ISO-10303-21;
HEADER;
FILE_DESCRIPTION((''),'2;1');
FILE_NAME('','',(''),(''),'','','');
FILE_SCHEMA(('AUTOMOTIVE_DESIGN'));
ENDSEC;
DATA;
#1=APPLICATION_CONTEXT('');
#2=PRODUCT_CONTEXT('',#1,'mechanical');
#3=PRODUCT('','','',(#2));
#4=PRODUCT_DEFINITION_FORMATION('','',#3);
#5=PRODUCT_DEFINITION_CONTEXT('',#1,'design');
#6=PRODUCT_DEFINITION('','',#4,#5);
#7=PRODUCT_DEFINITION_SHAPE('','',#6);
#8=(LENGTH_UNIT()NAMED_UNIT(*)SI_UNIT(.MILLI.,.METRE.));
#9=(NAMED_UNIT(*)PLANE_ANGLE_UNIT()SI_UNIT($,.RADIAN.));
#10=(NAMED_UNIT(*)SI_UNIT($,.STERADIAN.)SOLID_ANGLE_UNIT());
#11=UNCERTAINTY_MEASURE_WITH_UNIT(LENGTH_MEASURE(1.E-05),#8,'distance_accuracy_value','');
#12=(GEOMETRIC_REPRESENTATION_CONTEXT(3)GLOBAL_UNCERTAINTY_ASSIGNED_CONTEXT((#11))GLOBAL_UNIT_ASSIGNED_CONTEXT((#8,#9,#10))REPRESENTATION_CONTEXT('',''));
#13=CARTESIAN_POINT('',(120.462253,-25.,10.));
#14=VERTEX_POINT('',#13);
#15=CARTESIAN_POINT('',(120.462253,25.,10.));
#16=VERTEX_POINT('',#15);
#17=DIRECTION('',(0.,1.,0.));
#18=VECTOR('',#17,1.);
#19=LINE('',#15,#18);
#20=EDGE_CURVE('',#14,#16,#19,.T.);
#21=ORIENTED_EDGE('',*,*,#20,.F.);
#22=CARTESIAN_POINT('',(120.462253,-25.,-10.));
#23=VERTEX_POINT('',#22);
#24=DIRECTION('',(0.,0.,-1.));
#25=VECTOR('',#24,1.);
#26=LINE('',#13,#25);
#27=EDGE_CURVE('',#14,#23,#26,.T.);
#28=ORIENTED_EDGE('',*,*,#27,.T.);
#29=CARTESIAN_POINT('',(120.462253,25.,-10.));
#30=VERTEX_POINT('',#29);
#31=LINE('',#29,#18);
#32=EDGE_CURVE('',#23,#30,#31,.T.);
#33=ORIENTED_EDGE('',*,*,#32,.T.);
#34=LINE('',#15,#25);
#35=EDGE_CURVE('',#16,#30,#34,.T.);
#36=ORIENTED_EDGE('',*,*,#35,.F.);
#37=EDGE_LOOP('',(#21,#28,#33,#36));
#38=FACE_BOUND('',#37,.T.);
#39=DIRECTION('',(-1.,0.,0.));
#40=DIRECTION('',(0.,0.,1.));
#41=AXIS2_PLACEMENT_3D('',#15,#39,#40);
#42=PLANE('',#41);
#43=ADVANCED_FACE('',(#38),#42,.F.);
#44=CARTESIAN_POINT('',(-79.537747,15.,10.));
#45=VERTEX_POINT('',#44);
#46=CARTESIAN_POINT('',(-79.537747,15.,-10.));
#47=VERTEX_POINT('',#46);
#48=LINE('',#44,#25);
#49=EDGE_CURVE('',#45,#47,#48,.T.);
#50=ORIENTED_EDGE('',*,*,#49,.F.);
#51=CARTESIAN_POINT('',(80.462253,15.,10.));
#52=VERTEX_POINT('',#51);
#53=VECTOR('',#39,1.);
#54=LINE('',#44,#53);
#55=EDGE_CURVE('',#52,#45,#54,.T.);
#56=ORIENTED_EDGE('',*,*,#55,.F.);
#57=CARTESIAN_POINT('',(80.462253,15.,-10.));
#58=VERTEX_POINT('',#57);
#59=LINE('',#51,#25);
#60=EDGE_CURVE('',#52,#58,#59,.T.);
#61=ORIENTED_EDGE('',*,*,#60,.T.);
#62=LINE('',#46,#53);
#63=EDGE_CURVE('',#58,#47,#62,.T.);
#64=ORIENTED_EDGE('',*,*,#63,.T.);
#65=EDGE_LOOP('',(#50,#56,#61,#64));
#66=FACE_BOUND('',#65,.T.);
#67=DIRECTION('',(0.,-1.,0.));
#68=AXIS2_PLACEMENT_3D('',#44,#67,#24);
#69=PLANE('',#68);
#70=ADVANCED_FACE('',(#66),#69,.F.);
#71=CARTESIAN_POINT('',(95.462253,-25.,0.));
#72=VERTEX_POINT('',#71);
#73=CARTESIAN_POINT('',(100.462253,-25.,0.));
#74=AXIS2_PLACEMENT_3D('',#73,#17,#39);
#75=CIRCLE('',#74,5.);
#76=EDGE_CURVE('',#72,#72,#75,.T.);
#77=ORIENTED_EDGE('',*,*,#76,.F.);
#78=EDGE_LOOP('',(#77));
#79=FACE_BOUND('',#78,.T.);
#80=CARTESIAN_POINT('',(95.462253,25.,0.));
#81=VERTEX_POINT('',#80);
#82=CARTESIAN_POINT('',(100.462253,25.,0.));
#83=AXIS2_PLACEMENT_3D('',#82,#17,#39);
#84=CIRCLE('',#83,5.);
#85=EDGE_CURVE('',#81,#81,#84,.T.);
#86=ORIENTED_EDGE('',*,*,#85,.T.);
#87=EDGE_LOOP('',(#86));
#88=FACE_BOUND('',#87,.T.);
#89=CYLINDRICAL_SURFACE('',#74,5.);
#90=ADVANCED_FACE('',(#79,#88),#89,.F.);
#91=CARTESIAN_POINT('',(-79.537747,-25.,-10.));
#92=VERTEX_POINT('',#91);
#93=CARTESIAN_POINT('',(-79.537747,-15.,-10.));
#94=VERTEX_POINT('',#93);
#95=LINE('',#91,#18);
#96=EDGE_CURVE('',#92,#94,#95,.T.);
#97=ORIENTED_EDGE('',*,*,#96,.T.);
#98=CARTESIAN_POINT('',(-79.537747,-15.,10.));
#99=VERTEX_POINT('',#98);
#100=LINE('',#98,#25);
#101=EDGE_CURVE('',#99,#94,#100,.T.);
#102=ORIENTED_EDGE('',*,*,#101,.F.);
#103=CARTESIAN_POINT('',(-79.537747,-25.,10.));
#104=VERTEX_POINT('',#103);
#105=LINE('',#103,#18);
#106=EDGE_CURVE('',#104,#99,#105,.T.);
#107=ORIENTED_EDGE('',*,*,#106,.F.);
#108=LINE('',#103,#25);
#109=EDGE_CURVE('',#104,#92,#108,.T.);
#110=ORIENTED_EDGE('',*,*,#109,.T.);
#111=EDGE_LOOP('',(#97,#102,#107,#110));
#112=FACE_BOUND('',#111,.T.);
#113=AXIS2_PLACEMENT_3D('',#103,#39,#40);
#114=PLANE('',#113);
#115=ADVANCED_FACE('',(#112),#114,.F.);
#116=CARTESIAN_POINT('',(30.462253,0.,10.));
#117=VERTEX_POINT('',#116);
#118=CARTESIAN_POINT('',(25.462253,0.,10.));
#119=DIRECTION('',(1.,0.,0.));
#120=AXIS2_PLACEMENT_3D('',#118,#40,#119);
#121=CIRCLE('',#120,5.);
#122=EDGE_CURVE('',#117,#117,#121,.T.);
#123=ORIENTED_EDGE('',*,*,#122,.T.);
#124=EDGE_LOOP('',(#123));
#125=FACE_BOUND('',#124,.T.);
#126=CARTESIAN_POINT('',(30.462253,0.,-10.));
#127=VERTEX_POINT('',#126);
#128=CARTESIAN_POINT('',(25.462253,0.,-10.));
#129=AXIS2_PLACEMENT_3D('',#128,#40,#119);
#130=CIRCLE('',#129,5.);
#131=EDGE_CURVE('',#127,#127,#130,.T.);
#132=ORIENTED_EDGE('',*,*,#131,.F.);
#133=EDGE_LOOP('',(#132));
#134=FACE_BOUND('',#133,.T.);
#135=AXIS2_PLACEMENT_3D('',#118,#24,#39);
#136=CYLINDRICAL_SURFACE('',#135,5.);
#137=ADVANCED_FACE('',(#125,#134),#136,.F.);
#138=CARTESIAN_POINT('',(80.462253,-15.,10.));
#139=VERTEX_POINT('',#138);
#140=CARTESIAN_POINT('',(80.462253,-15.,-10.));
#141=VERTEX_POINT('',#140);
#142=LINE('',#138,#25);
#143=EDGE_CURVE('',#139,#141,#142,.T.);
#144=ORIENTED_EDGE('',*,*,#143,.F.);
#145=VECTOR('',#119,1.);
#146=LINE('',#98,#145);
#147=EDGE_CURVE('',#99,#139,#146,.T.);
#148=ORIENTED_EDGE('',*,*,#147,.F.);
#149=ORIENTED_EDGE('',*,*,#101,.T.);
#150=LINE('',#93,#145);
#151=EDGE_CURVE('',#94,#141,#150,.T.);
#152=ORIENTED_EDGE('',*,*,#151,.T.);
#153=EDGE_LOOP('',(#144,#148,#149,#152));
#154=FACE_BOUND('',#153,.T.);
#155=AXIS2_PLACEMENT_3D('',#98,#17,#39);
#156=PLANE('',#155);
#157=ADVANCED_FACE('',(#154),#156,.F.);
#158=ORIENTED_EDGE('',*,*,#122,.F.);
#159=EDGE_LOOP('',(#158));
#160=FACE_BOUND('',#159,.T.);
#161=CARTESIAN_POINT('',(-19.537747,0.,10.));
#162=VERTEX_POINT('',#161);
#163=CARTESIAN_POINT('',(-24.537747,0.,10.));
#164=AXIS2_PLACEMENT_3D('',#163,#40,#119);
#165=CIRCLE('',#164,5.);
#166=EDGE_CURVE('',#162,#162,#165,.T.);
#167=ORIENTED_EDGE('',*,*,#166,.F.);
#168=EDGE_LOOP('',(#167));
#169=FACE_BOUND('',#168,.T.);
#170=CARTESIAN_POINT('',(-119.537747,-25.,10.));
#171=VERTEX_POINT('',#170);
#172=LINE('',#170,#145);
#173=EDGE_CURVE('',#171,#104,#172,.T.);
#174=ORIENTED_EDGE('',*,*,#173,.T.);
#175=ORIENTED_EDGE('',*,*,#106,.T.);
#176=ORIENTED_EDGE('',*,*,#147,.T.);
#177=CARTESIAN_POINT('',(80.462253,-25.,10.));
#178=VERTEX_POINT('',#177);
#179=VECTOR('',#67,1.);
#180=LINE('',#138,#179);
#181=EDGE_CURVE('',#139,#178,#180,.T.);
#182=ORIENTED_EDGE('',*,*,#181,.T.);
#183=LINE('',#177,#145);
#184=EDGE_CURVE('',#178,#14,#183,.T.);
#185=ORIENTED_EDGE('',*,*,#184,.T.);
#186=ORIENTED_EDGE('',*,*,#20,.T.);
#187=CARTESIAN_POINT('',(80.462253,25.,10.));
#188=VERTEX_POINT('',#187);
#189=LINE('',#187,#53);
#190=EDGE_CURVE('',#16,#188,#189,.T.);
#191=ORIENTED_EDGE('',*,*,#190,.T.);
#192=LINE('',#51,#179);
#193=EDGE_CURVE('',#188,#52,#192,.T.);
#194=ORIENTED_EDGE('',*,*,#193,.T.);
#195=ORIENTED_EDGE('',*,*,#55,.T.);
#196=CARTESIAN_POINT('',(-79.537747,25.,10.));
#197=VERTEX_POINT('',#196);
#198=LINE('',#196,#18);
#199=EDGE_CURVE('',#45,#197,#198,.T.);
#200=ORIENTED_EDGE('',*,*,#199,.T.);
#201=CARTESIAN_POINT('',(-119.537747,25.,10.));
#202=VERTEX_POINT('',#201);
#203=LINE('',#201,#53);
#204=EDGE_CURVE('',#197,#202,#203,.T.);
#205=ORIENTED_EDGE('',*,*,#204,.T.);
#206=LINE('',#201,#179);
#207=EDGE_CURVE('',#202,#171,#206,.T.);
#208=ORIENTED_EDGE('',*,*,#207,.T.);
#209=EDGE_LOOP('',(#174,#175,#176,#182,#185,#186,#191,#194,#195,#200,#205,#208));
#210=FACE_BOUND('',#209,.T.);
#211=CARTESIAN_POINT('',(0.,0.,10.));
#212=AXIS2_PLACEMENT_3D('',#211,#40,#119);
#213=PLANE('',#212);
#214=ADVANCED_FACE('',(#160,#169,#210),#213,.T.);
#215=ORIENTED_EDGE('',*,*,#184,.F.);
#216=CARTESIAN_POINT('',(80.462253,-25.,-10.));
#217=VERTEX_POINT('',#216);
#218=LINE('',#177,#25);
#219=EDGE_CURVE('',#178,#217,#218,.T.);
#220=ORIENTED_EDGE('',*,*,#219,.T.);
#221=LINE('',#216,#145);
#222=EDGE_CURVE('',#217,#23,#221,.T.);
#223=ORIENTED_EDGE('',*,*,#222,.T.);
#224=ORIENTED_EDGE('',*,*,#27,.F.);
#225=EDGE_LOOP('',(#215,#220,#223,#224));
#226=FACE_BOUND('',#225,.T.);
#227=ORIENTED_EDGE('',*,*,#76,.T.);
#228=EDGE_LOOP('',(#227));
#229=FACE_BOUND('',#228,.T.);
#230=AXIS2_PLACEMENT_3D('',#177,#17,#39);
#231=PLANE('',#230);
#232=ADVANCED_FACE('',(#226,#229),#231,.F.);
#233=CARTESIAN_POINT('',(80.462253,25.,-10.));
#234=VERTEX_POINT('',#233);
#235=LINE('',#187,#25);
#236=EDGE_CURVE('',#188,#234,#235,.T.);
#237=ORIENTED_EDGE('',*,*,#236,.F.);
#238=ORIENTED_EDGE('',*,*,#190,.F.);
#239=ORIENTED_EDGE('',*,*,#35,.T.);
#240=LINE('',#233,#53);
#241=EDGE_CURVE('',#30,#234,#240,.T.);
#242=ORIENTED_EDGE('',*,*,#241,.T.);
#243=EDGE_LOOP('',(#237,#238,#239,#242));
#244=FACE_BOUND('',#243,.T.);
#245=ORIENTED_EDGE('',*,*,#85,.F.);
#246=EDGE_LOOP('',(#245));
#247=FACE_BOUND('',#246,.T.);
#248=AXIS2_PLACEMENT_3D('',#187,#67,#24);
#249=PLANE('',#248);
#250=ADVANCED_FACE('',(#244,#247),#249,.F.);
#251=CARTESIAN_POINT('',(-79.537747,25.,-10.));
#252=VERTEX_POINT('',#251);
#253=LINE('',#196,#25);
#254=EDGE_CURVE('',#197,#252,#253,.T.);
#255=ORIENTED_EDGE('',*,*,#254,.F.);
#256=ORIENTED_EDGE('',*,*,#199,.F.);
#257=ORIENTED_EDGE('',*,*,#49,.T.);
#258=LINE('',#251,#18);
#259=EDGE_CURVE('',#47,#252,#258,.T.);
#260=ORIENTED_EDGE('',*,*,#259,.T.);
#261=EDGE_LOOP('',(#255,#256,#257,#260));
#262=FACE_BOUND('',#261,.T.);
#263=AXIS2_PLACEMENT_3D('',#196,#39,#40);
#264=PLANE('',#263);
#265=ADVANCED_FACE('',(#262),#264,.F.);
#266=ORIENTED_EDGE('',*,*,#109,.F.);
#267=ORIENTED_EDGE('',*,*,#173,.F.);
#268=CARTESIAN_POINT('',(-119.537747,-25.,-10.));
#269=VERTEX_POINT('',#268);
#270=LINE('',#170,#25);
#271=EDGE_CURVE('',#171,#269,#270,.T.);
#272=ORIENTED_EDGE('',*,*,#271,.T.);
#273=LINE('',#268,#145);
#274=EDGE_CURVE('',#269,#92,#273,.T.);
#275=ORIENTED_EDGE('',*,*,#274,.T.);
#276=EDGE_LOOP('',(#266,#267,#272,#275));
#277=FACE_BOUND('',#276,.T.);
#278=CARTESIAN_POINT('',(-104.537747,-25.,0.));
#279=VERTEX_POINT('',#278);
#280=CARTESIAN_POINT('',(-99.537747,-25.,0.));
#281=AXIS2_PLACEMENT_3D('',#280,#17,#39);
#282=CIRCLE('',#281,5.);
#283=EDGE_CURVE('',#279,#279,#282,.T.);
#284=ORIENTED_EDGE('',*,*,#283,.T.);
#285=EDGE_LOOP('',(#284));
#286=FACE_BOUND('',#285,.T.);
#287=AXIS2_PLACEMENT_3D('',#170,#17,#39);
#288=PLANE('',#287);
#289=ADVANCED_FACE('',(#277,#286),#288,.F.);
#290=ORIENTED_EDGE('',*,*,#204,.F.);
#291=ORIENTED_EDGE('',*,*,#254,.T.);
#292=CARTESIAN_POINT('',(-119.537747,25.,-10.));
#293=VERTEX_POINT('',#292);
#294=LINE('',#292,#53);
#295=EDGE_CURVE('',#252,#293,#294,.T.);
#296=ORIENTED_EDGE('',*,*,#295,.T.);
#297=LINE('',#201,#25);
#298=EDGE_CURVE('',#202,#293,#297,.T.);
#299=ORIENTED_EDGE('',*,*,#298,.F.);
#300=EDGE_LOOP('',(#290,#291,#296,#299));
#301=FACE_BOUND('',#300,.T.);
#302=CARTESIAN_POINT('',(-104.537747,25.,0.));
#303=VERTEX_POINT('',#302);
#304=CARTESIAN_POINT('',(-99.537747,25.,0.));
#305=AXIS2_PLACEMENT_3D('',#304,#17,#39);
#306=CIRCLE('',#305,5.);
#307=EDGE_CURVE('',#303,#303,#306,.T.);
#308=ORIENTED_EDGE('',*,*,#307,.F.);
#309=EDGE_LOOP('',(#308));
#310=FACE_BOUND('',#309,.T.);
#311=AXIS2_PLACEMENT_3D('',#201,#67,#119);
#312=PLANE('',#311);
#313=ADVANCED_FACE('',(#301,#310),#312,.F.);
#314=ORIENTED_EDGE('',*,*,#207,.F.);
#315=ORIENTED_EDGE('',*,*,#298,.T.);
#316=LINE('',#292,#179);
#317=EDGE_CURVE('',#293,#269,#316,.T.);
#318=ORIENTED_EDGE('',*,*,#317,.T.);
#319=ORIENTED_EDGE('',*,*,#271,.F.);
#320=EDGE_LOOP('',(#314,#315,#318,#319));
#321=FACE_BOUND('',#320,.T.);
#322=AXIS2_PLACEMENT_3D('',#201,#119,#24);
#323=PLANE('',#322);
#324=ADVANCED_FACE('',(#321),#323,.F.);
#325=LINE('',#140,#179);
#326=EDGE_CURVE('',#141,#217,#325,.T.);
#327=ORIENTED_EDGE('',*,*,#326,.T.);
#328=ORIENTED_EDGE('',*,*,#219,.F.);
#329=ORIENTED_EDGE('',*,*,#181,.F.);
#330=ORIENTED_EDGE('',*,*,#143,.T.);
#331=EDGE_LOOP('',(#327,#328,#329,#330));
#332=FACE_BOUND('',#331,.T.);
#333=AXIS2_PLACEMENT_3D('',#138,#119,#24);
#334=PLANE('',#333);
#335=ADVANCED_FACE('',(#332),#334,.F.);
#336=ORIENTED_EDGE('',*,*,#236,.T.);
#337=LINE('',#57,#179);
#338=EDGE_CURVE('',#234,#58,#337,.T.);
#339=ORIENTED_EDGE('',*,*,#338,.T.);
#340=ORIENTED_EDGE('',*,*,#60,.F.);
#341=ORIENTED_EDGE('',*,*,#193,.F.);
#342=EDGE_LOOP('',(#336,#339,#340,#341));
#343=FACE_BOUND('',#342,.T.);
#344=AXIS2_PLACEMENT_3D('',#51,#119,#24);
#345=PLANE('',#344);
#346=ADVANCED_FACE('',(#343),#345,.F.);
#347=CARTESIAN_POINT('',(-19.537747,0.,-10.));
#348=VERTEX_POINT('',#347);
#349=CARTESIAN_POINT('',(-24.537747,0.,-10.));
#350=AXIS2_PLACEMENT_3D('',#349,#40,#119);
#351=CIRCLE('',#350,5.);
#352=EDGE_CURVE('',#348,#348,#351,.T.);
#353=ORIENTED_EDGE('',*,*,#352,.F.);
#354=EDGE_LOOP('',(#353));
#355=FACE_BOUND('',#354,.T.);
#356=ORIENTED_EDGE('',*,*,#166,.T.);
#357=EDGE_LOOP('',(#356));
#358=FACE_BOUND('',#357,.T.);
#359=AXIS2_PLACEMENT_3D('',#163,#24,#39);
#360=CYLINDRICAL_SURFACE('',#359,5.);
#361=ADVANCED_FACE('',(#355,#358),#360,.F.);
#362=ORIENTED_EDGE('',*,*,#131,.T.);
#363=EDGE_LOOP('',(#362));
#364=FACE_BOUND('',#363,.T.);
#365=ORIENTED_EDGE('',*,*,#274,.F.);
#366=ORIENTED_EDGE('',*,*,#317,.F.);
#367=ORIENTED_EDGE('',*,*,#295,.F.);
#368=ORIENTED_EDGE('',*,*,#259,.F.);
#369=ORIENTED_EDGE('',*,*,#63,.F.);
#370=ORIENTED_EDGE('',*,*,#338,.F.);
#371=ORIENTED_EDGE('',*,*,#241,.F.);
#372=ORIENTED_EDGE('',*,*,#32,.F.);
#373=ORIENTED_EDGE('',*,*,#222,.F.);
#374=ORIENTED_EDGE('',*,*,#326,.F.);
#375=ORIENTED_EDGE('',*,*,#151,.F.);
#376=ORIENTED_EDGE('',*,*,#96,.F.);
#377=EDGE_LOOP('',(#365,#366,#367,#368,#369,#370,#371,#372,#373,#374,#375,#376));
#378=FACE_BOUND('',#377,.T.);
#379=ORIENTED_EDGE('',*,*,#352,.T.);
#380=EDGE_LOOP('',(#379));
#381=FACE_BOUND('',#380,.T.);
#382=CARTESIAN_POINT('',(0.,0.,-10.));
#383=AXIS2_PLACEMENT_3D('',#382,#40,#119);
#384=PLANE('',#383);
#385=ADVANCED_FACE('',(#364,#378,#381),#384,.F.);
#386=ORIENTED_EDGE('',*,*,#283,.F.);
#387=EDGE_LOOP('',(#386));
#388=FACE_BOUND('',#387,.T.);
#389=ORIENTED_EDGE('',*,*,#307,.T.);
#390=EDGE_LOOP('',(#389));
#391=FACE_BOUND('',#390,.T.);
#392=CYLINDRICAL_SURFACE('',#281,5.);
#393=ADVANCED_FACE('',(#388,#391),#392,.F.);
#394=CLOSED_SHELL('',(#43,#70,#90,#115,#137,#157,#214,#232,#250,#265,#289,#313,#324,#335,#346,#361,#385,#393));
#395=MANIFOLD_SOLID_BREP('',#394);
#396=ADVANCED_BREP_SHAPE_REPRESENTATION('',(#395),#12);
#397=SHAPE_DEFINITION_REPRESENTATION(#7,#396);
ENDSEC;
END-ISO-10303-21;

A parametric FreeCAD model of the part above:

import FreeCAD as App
import Part
import Sketcher
from FreeCAD import Vector
Q = App.Units.Quantity

doc = App.newDocument("Part")
params = doc.addObject("Spreadsheet::Sheet", "Params")
for row, (alias, value) in enumerate([
    ("sketch1_diameter", "10 mm"),
    ("sketch1_width", "40 mm"),
    ("sketch1_width2", "160 mm"),
    ("sketch1_height", "50 mm"),
    ("sketch1_height2", "10 mm"),
    ("pad1_length", "20 mm"),
    ("sketch2_diameter", "10 mm"),
], start=1):
    params.set(f"A{row}", alias)
    params.set(f"B{row}", "=" + value)
    params.setAlias(f"B{row}", alias)

body = doc.addObject("PartDesign::Body", "Body")

# Sketch on XY plane
sketch1 = body.newObject("Sketcher::SketchObject", "Sketch")
sketch1.AttachmentSupport = (doc.getObject("XY_Plane"), [""])
sketch1.MapMode = "FlatFace"
sketch1.addGeometry(Part.LineSegment(Vector(-79.537747, 25, 0), Vector(-119.537747, 25, 0)), False)
sketch1.addGeometry(Part.LineSegment(Vector(-119.537747, 25, 0), Vector(-119.537747, -25, 0)), False)
sketch1.addGeometry(Part.LineSegment(Vector(-119.537747, -25, 0), Vector(-79.537747, -25, 0)), False)
sketch1.addGeometry(Part.LineSegment(Vector(-79.537747, -25, 0), Vector(-79.537747, -15, 0)), False)
sketch1.addGeometry(Part.LineSegment(Vector(-79.537747, -15, 0), Vector(80.462253, -15, 0)), False)
sketch1.addGeometry(Part.LineSegment(Vector(80.462253, -15, 0), Vector(80.462253, -25, 0)), False)
sketch1.addGeometry(Part.LineSegment(Vector(80.462253, -25, 0), Vector(120.462253, -25, 0)), False)
sketch1.addGeometry(Part.LineSegment(Vector(120.462253, -25, 0), Vector(120.462253, 25, 0)), False)
sketch1.addGeometry(Part.LineSegment(Vector(120.462253, 25, 0), Vector(80.462253, 25, 0)), False)
sketch1.addGeometry(Part.LineSegment(Vector(80.462253, 25, 0), Vector(80.462253, 15, 0)), False)
sketch1.addGeometry(Part.LineSegment(Vector(80.462253, 15, 0), Vector(-79.537747, 15, 0)), False)
sketch1.addGeometry(Part.LineSegment(Vector(-79.537747, 15, 0), Vector(-79.537747, 25, 0)), False)
sketch1.addGeometry(Part.Circle(Vector(25.462253, 0, 0), Vector(0, 0, 1), 5), False)
sketch1.addGeometry(Part.Circle(Vector(-24.537747, 0, 0), Vector(0, 0, 1), 5), False)
sketch1.addConstraint(Sketcher.Constraint("Coincident", 0, 2, 1, 1))
sketch1.addConstraint(Sketcher.Constraint("Coincident", 1, 2, 2, 1))
sketch1.addConstraint(Sketcher.Constraint("Coincident", 2, 2, 3, 1))
sketch1.addConstraint(Sketcher.Constraint("Coincident", 3, 2, 4, 1))
sketch1.addConstraint(Sketcher.Constraint("Coincident", 4, 2, 5, 1))
sketch1.addConstraint(Sketcher.Constraint("Coincident", 5, 2, 6, 1))
sketch1.addConstraint(Sketcher.Constraint("Coincident", 6, 2, 7, 1))
sketch1.addConstraint(Sketcher.Constraint("Coincident", 7, 2, 8, 1))
sketch1.addConstraint(Sketcher.Constraint("Coincident", 8, 2, 9, 1))
sketch1.addConstraint(Sketcher.Constraint("Coincident", 9, 2, 10, 1))
sketch1.addConstraint(Sketcher.Constraint("Coincident", 10, 2, 11, 1))
sketch1.addConstraint(Sketcher.Constraint("Coincident", 11, 2, 0, 1))
sketch1.addConstraint(Sketcher.Constraint("Horizontal", 0))
sketch1.addConstraint(Sketcher.Constraint("Vertical", 1))
sketch1.addConstraint(Sketcher.Constraint("Horizontal", 2))
sketch1.addConstraint(Sketcher.Constraint("Vertical", 3))
sketch1.addConstraint(Sketcher.Constraint("Horizontal", 4))
sketch1.addConstraint(Sketcher.Constraint("Vertical", 5))
sketch1.addConstraint(Sketcher.Constraint("Horizontal", 6))
sketch1.addConstraint(Sketcher.Constraint("Vertical", 7))
sketch1.addConstraint(Sketcher.Constraint("Horizontal", 8))
sketch1.addConstraint(Sketcher.Constraint("Vertical", 9))
sketch1.addConstraint(Sketcher.Constraint("Horizontal", 10))
sketch1.addConstraint(Sketcher.Constraint("Vertical", 11))
sketch1.addConstraint(Sketcher.Constraint("Equal", 12, 13))
sketch1.addConstraint(Sketcher.Constraint("Symmetric", 5, 2, 8, 2, -1))
sketch1.addConstraint(Sketcher.Constraint("Symmetric", 3, 2, 10, 2, -1))
sketch1.addConstraint(Sketcher.Constraint("PointOnObject", 12, 3, -1))
sketch1.addConstraint(Sketcher.Constraint("PointOnObject", 13, 3, -1))
sketch1.addConstraint(Sketcher.Constraint("Horizontal", 2, 2, 5, 2))
sketch1.addConstraint(Sketcher.Constraint("Horizontal", 0, 2, 7, 2))
sketch1.addConstraint(Sketcher.Constraint("Equal", 2, 6))
sketch1.addConstraint(Sketcher.Constraint("Diameter", 12, Q("10 mm")))
sketch1.addConstraint(Sketcher.Constraint("DistanceX", 0, 2, 0, 1, Q("40 mm")))
sketch1.addConstraint(Sketcher.Constraint("DistanceX", 4, 1, 4, 2, Q("160 mm")))
sketch1.addConstraint(Sketcher.Constraint("DistanceY", 1, 2, 1, 1, Q("50 mm")))
sketch1.addConstraint(Sketcher.Constraint("DistanceY", 3, 1, 3, 2, Q("10 mm")))
sketch1.addConstraint(Sketcher.Constraint("DistanceX", 13, 3, 12, 3, Q("50 mm")))
sketch1.addConstraint(Sketcher.Constraint("DistanceX", 0, 2, 13, 3, Q("95 mm")))
sketch1.addConstraint(Sketcher.Constraint("DistanceX", -1, 1, 12, 3, Q("25.462253 mm")))
sketch1.setExpression("Constraints[32]", "Params.sketch1_diameter")
sketch1.setExpression("Constraints[33]", "Params.sketch1_width")
sketch1.setExpression("Constraints[34]", "Params.sketch1_width2")
sketch1.setExpression("Constraints[35]", "Params.sketch1_height")
sketch1.setExpression("Constraints[36]", "Params.sketch1_height2")
pad1 = body.newObject("PartDesign::Pad", "Pad")
pad1.Profile = sketch1
pad1.setExpression("Length", "Params.pad1_length")
pad1.Midplane = True

# Sketch on XZ plane
sketch2 = body.newObject("Sketcher::SketchObject", "Sketch001")
sketch2.AttachmentSupport = (doc.getObject("XZ_Plane"), [""])
sketch2.MapMode = "FlatFace"
sketch2.AttachmentOffset = App.Placement(Vector(0, 0, -25), App.Rotation())
sketch2.addGeometry(Part.Circle(Vector(-99.537747, 0, 0), Vector(0, 0, 1), 5), False)
sketch2.addGeometry(Part.Circle(Vector(100.462253, 0, 0), Vector(0, 0, 1), 5), False)
sketch2.addConstraint(Sketcher.Constraint("Equal", 0, 1))
sketch2.addConstraint(Sketcher.Constraint("PointOnObject", 0, 3, -1))
sketch2.addConstraint(Sketcher.Constraint("PointOnObject", 1, 3, -1))
sketch2.addConstraint(Sketcher.Constraint("Diameter", 0, Q("10 mm")))
sketch2.addConstraint(Sketcher.Constraint("DistanceX", 0, 3, 1, 3, Q("200 mm")))
sketch2.addConstraint(Sketcher.Constraint("DistanceX", 0, 3, -1, 1, Q("99.537747 mm")))
sketch2.setExpression("Constraints[3]", "Params.sketch2_diameter")
pocket1 = body.newObject("PartDesign::Pocket", "Pocket")
pocket1.Profile = sketch2
pocket1.Type = "ThroughAll"
pocket1.Reversed = True

doc.recompute()
